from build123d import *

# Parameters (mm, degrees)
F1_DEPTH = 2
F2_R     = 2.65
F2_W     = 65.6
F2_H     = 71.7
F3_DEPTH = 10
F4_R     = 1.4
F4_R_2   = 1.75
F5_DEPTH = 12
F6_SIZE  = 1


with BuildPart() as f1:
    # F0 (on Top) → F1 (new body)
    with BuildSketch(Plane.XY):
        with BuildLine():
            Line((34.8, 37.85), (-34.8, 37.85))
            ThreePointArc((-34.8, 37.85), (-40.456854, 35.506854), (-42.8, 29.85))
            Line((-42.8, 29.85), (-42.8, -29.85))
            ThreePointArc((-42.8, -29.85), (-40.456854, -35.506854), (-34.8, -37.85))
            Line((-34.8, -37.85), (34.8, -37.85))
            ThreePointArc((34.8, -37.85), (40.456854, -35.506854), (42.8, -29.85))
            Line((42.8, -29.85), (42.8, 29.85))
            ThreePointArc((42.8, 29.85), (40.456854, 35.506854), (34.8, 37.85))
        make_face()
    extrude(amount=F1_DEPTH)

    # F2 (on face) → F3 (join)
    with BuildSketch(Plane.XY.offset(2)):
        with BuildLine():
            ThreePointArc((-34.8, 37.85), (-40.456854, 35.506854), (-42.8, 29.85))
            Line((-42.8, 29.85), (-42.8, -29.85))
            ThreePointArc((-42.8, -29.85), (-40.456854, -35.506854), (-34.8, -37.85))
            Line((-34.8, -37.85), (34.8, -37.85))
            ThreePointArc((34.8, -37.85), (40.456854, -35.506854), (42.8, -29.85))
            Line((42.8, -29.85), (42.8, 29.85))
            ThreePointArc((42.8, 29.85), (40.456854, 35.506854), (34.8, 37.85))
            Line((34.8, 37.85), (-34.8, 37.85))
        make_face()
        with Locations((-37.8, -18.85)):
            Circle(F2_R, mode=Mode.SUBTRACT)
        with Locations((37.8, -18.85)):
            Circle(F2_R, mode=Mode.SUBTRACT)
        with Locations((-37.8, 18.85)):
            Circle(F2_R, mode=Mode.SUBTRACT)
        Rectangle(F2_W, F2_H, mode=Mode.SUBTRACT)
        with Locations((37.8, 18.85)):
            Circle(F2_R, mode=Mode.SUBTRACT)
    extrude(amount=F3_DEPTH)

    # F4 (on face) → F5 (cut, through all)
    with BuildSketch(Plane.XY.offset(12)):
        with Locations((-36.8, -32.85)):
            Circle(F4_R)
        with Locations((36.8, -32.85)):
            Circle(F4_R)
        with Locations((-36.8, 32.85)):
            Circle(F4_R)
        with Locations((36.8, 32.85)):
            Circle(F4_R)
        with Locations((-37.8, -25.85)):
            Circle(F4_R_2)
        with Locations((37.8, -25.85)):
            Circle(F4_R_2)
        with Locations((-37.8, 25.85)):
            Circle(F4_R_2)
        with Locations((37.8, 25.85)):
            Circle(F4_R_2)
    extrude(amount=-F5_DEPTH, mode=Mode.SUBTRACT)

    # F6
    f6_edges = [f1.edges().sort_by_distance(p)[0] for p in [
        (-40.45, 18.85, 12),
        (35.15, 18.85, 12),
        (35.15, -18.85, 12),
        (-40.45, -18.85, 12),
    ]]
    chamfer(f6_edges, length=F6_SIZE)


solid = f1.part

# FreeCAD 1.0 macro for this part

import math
import FreeCAD as App
import Part
import Sketcher


def edges_at(feature, points):
    """Names of the edges that pass closest to the given points."""
    edges = feature.Shape.Edges
    near = lambda p: min(range(len(edges)), key=lambda i: edges[i].distToShape(Part.Vertex(*p))[0])
    return sorted({f"Edge{near(p) + 1}" for p in points})


def add_polygon(sketch, points):
    """Adds a closed chain of lines whose ends are joined by coincident constraints."""
    first, n = sketch.GeometryCount, len(points)
    for a, b in zip(points, points[1:] + points[:1]):
        sketch.addGeometry(Part.LineSegment(App.Vector(*a, 0), App.Vector(*b, 0)), False)
    for i in range(n):
        sketch.addConstraint(Sketcher.Constraint("Coincident", first + i, 2, first + (i + 1) % n, 1))

doc = App.newDocument("Part")
params = doc.addObject("Spreadsheet::Sheet", "Params")
for row, (alias, value) in enumerate([
    ("sketch1_radius", "8.000001 mm"),
    ("sketch1_width", "69.6 mm"),
    ("sketch1_height", "59.7 mm"),
    ("pad1_length", "2 mm"),
    ("sketch2_radius", "8.000001 mm"),
    ("sketch2_diameter", "5.3 mm"),
    ("sketch2_width", "69.6 mm"),
    ("sketch2_width2", "65.6 mm"),
    ("sketch2_height", "59.7 mm"),
    ("pad2_length", "10 mm"),
    ("sketch3_diameter", "2.8 mm"),
    ("sketch3_diameter2", "3.5 mm"),
    ("chamfer_size", "1 mm"),
], start=1):
    params.set(f"A{row}", alias)
    params.set(f"B{row}", "=" + value)
    params.setAlias(f"B{row}", alias)

body = doc.addObject("PartDesign::Body", "Body")

# Sketch on XY plane
sketch1 = doc.addObject("Sketcher::SketchObject", "Sketch")
body.addObject(sketch1)
sketch1.AttachmentSupport = (doc.XY_Plane, [""])
sketch1.MapMode = "FlatFace"
sketch1.addGeometry([
    Part.LineSegment(App.Vector(35, 38, 0), App.Vector(-35, 38, 0)),  # 0
    Part.ArcOfCircle(Part.Circle(App.Vector(-35, 30, 0), App.Vector(0, 0, 1), 8), math.radians(90), math.radians(180)),  # 1
    Part.LineSegment(App.Vector(-43, 30, 0), App.Vector(-43, -30, 0)),  # 2
    Part.ArcOfCircle(Part.Circle(App.Vector(-35, -30, 0), App.Vector(0, 0, 1), 8), math.radians(-180), math.radians(-90)),  # 3
    Part.LineSegment(App.Vector(-35, -38, 0), App.Vector(35, -38, 0)),  # 4
    Part.ArcOfCircle(Part.Circle(App.Vector(35, -30, 0), App.Vector(0, 0, 1), 8), math.radians(-90), math.radians(0)),  # 5
    Part.LineSegment(App.Vector(43, -30, 0), App.Vector(43, 30, 0)),  # 6
    Part.ArcOfCircle(Part.Circle(App.Vector(35, 30, 0), App.Vector(0, 0, 1), 8), math.radians(0), math.radians(90)),  # 7
], False)
sketch1.addConstraint([
    Sketcher.Constraint("Tangent", 0, 2, 1, 1),
    Sketcher.Constraint("Tangent", 1, 2, 2, 1),
    Sketcher.Constraint("Tangent", 2, 2, 3, 1),
    Sketcher.Constraint("Tangent", 3, 2, 4, 1),
    Sketcher.Constraint("Tangent", 4, 2, 5, 1),
    Sketcher.Constraint("Tangent", 5, 2, 6, 1),
    Sketcher.Constraint("Tangent", 6, 2, 7, 1),
    Sketcher.Constraint("Tangent", 7, 2, 0, 1),
    Sketcher.Constraint("Horizontal", 0),
    Sketcher.Constraint("Vertical", 2),
    Sketcher.Constraint("Horizontal", 4),
    Sketcher.Constraint("Vertical", 6),
    Sketcher.Constraint("Equal", 1, 3),
    Sketcher.Constraint("Equal", 3, 5),
    Sketcher.Constraint("Equal", 5, 7),
    Sketcher.Constraint("Symmetric", 1, 3, 5, 3, -1, 1),
    Sketcher.Constraint("Radius", 1, 8.000001),
    Sketcher.Constraint("DistanceX", 0, 2, 0, 1, 69.6),
    Sketcher.Constraint("DistanceY", 2, 2, 2, 1, 59.7),
])
sketch1.setExpression("Constraints[16]", "Params.sketch1_radius")
sketch1.setExpression("Constraints[17]", "Params.sketch1_width")
sketch1.setExpression("Constraints[18]", "Params.sketch1_height")
pad1 = doc.addObject("PartDesign::Pad", "Pad")
body.addObject(pad1)
pad1.Profile = sketch1
pad1.setExpression("Length", "Params.pad1_length")

# Sketch on XY plane
sketch2 = doc.addObject("Sketcher::SketchObject", "Sketch001")
body.addObject(sketch2)
sketch2.AttachmentSupport = (doc.XY_Plane, [""])
sketch2.MapMode = "FlatFace"
sketch2.AttachmentOffset = App.Placement(App.Vector(0, 0, 2), App.Rotation())
sketch2.addGeometry(Part.ArcOfCircle(Part.Circle(App.Vector(-34.8, 29.8, 0), App.Vector(0, 0, 1), 8), math.radians(90), math.radians(180)), False)  # 0
sketch2.addGeometry(Part.LineSegment(App.Vector(-42.8, 29.9, 0), App.Vector(-42.8, -29.9, 0)), False)  # 1
sketch2.addGeometry(Part.ArcOfCircle(Part.Circle(App.Vector(-34.8, -29.8, 0), App.Vector(0, 0, 1), 8), math.radians(-180), math.radians(-90)), False)  # 2
sketch2.addGeometry(Part.LineSegment(App.Vector(-34.8, -37.9, 0), App.Vector(34.8, -37.9, 0)), False)  # 3
sketch2.addGeometry(Part.ArcOfCircle(Part.Circle(App.Vector(34.8, -29.8, 0), App.Vector(0, 0, 1), 8), math.radians(-90), math.radians(0)), False)  # 4
sketch2.addGeometry(Part.LineSegment(App.Vector(42.8, -29.9, 0), App.Vector(42.8, 29.9, 0)), False)  # 5
sketch2.addGeometry(Part.ArcOfCircle(Part.Circle(App.Vector(34.8, 29.8, 0), App.Vector(0, 0, 1), 8), math.radians(0), math.radians(90)), False)  # 6
sketch2.addGeometry(Part.LineSegment(App.Vector(34.8, 37.9, 0), App.Vector(-34.8, 37.9, 0)), False)  # 7
sketch2.addGeometry(Part.Circle(App.Vector(-37.8, -18.9, 0), App.Vector(0, 0, 1), 2.6), False)  # 8
sketch2.addGeometry(Part.Circle(App.Vector(37.8, -18.9, 0), App.Vector(0, 0, 1), 2.6), False)  # 9
sketch2.addGeometry(Part.Circle(App.Vector(-37.8, 18.9, 0), App.Vector(0, 0, 1), 2.6), False)  # 10
add_polygon(sketch2, [(32.8, -35.9), (-32.8, -35.9), (-32.8, 35.9), (32.8, 35.9)])  # lines 11-14
sketch2.addGeometry(Part.Circle(App.Vector(37.8, 18.9, 0), App.Vector(0, 0, 1), 2.6), False)  # 15
sketch2.addConstraint([
    Sketcher.Constraint("Tangent", 0, 2, 1, 1),
    Sketcher.Constraint("Tangent", 1, 2, 2, 1),
    Sketcher.Constraint("Tangent", 2, 2, 3, 1),
    Sketcher.Constraint("Tangent", 3, 2, 4, 1),
    Sketcher.Constraint("Tangent", 4, 2, 5, 1),
    Sketcher.Constraint("Tangent", 5, 2, 6, 1),
    Sketcher.Constraint("Tangent", 6, 2, 7, 1),
    Sketcher.Constraint("Tangent", 7, 2, 0, 1),
    Sketcher.Constraint("Vertical", 1),
    Sketcher.Constraint("Horizontal", 3),
    Sketcher.Constraint("Vertical", 5),
    Sketcher.Constraint("Horizontal", 7),
    Sketcher.Constraint("Horizontal", 11),
    Sketcher.Constraint("Vertical", 12),
    Sketcher.Constraint("Horizontal", 13),
    Sketcher.Constraint("Vertical", 14),
    Sketcher.Constraint("Equal", 0, 2),
    Sketcher.Constraint("Equal", 2, 4),
    Sketcher.Constraint("Equal", 4, 6),
    Sketcher.Constraint("Equal", 8, 9),
    Sketcher.Constraint("Equal", 9, 10),
    Sketcher.Constraint("Equal", 10, 15),
    Sketcher.Constraint("Symmetric", 0, 3, 4, 3, -1, 1),
    Sketcher.Constraint("Symmetric", 9, 3, 10, 3, -1, 1),
    Sketcher.Constraint("Symmetric", 8, 3, 15, 3, -1, 1),
    Sketcher.Constraint("Symmetric", 11, 2, 13, 2, -1, 1),
    Sketcher.Constraint("Symmetric", 8, 3, 9, 3, -2),
    Sketcher.Constraint("Radius", 0, 8.000001),
    Sketcher.Constraint("Diameter", 8, 5.3),
    Sketcher.Constraint("DistanceX", 3, 1, 3, 2, 69.6),
    Sketcher.Constraint("DistanceX", 11, 2, 11, 1, 65.6),
    Sketcher.Constraint("DistanceY", 1, 2, 1, 1, 59.7),
    Sketcher.Constraint("DistanceY", 12, 1, 12, 2, 71.7),
    Sketcher.Constraint("DistanceX", 8, 3, 2, 3, 3.000001),
    Sketcher.Constraint("DistanceY", 2, 3, 8, 3, 10.999999),
])
sketch2.setExpression("Constraints[31]", "Params.sketch2_radius")
sketch2.setExpression("Constraints[32]", "Params.sketch2_diameter")
sketch2.setExpression("Constraints[33]", "Params.sketch2_width")
sketch2.setExpression("Constraints[34]", "Params.sketch2_width2")
sketch2.setExpression("Constraints[35]", "Params.sketch2_height")
pad2 = doc.addObject("PartDesign::Pad", "Pad001")
body.addObject(pad2)
pad2.Profile = sketch2
pad2.setExpression("Length", "Params.pad2_length")

# Sketch on XY plane
sketch3 = doc.addObject("Sketcher::SketchObject", "Sketch002")
body.addObject(sketch3)
sketch3.AttachmentSupport = (doc.XY_Plane, [""])
sketch3.MapMode = "FlatFace"
sketch3.AttachmentOffset = App.Placement(App.Vector(0, 0, 12), App.Rotation())
sketch3.addGeometry([
    Part.Circle(App.Vector(-36.8, -32.9, 0), App.Vector(0, 0, 1), 1.4),  # 0
    Part.Circle(App.Vector(36.8, -32.9, 0), App.Vector(0, 0, 1), 1.4),  # 1
    Part.Circle(App.Vector(-36.8, 32.9, 0), App.Vector(0, 0, 1), 1.4),  # 2
    Part.Circle(App.Vector(36.8, 32.9, 0), App.Vector(0, 0, 1), 1.4),  # 3
    Part.Circle(App.Vector(-37.8, -25.9, 0), App.Vector(0, 0, 1), 1.8),  # 4
    Part.Circle(App.Vector(37.8, -25.9, 0), App.Vector(0, 0, 1), 1.8),  # 5
    Part.Circle(App.Vector(-37.8, 25.9, 0), App.Vector(0, 0, 1), 1.8),  # 6
    Part.Circle(App.Vector(37.8, 25.9, 0), App.Vector(0, 0, 1), 1.8),  # 7
], False)
sketch3.addConstraint([
    Sketcher.Constraint("Equal", 0, 1),
    Sketcher.Constraint("Equal", 1, 2),
    Sketcher.Constraint("Equal", 2, 3),
    Sketcher.Constraint("Equal", 4, 5),
    Sketcher.Constraint("Equal", 5, 6),
    Sketcher.Constraint("Equal", 6, 7),
    Sketcher.Constraint("Symmetric", 1, 3, 2, 3, -1, 1),
    Sketcher.Constraint("Symmetric", 0, 3, 3, 3, -1, 1),
    Sketcher.Constraint("Symmetric", 5, 3, 6, 3, -1, 1),
    Sketcher.Constraint("Symmetric", 4, 3, 7, 3, -1, 1),
    Sketcher.Constraint("Symmetric", 0, 3, 1, 3, -2),
    Sketcher.Constraint("Symmetric", 4, 3, 5, 3, -2),
    Sketcher.Constraint("Diameter", 0, 2.8),
    Sketcher.Constraint("Diameter", 4, 3.5),
    Sketcher.Constraint("DistanceX", 4, 3, 0, 3, 1.0),
    Sketcher.Constraint("DistanceY", 0, 3, 4, 3, 7.0),
    Sketcher.Constraint("DistanceX", 0, 3, -1, 1, 36.8),
    Sketcher.Constraint("DistanceY", 0, 3, 2, 3, 65.7),
])
sketch3.setExpression("Constraints[12]", "Params.sketch3_diameter")
sketch3.setExpression("Constraints[13]", "Params.sketch3_diameter2")
pocket1 = doc.addObject("PartDesign::Pocket", "Pocket")
body.addObject(pocket1)
pocket1.Profile = sketch3
pocket1.Type = "ThroughAll"
doc.recompute()

chamfer = doc.addObject("PartDesign::Chamfer", "Chamfer")
body.addObject(chamfer)
chamfer.Base = (pocket1, edges_at(pocket1, [
    (-40.45, 18.85, 12),
    (35.15, 18.85, 12),
    (35.15, -18.85, 12),
    (-40.45, -18.85, 12),
]))
chamfer.setExpression("Size", "Params.chamfer_size")

doc.recompute()
